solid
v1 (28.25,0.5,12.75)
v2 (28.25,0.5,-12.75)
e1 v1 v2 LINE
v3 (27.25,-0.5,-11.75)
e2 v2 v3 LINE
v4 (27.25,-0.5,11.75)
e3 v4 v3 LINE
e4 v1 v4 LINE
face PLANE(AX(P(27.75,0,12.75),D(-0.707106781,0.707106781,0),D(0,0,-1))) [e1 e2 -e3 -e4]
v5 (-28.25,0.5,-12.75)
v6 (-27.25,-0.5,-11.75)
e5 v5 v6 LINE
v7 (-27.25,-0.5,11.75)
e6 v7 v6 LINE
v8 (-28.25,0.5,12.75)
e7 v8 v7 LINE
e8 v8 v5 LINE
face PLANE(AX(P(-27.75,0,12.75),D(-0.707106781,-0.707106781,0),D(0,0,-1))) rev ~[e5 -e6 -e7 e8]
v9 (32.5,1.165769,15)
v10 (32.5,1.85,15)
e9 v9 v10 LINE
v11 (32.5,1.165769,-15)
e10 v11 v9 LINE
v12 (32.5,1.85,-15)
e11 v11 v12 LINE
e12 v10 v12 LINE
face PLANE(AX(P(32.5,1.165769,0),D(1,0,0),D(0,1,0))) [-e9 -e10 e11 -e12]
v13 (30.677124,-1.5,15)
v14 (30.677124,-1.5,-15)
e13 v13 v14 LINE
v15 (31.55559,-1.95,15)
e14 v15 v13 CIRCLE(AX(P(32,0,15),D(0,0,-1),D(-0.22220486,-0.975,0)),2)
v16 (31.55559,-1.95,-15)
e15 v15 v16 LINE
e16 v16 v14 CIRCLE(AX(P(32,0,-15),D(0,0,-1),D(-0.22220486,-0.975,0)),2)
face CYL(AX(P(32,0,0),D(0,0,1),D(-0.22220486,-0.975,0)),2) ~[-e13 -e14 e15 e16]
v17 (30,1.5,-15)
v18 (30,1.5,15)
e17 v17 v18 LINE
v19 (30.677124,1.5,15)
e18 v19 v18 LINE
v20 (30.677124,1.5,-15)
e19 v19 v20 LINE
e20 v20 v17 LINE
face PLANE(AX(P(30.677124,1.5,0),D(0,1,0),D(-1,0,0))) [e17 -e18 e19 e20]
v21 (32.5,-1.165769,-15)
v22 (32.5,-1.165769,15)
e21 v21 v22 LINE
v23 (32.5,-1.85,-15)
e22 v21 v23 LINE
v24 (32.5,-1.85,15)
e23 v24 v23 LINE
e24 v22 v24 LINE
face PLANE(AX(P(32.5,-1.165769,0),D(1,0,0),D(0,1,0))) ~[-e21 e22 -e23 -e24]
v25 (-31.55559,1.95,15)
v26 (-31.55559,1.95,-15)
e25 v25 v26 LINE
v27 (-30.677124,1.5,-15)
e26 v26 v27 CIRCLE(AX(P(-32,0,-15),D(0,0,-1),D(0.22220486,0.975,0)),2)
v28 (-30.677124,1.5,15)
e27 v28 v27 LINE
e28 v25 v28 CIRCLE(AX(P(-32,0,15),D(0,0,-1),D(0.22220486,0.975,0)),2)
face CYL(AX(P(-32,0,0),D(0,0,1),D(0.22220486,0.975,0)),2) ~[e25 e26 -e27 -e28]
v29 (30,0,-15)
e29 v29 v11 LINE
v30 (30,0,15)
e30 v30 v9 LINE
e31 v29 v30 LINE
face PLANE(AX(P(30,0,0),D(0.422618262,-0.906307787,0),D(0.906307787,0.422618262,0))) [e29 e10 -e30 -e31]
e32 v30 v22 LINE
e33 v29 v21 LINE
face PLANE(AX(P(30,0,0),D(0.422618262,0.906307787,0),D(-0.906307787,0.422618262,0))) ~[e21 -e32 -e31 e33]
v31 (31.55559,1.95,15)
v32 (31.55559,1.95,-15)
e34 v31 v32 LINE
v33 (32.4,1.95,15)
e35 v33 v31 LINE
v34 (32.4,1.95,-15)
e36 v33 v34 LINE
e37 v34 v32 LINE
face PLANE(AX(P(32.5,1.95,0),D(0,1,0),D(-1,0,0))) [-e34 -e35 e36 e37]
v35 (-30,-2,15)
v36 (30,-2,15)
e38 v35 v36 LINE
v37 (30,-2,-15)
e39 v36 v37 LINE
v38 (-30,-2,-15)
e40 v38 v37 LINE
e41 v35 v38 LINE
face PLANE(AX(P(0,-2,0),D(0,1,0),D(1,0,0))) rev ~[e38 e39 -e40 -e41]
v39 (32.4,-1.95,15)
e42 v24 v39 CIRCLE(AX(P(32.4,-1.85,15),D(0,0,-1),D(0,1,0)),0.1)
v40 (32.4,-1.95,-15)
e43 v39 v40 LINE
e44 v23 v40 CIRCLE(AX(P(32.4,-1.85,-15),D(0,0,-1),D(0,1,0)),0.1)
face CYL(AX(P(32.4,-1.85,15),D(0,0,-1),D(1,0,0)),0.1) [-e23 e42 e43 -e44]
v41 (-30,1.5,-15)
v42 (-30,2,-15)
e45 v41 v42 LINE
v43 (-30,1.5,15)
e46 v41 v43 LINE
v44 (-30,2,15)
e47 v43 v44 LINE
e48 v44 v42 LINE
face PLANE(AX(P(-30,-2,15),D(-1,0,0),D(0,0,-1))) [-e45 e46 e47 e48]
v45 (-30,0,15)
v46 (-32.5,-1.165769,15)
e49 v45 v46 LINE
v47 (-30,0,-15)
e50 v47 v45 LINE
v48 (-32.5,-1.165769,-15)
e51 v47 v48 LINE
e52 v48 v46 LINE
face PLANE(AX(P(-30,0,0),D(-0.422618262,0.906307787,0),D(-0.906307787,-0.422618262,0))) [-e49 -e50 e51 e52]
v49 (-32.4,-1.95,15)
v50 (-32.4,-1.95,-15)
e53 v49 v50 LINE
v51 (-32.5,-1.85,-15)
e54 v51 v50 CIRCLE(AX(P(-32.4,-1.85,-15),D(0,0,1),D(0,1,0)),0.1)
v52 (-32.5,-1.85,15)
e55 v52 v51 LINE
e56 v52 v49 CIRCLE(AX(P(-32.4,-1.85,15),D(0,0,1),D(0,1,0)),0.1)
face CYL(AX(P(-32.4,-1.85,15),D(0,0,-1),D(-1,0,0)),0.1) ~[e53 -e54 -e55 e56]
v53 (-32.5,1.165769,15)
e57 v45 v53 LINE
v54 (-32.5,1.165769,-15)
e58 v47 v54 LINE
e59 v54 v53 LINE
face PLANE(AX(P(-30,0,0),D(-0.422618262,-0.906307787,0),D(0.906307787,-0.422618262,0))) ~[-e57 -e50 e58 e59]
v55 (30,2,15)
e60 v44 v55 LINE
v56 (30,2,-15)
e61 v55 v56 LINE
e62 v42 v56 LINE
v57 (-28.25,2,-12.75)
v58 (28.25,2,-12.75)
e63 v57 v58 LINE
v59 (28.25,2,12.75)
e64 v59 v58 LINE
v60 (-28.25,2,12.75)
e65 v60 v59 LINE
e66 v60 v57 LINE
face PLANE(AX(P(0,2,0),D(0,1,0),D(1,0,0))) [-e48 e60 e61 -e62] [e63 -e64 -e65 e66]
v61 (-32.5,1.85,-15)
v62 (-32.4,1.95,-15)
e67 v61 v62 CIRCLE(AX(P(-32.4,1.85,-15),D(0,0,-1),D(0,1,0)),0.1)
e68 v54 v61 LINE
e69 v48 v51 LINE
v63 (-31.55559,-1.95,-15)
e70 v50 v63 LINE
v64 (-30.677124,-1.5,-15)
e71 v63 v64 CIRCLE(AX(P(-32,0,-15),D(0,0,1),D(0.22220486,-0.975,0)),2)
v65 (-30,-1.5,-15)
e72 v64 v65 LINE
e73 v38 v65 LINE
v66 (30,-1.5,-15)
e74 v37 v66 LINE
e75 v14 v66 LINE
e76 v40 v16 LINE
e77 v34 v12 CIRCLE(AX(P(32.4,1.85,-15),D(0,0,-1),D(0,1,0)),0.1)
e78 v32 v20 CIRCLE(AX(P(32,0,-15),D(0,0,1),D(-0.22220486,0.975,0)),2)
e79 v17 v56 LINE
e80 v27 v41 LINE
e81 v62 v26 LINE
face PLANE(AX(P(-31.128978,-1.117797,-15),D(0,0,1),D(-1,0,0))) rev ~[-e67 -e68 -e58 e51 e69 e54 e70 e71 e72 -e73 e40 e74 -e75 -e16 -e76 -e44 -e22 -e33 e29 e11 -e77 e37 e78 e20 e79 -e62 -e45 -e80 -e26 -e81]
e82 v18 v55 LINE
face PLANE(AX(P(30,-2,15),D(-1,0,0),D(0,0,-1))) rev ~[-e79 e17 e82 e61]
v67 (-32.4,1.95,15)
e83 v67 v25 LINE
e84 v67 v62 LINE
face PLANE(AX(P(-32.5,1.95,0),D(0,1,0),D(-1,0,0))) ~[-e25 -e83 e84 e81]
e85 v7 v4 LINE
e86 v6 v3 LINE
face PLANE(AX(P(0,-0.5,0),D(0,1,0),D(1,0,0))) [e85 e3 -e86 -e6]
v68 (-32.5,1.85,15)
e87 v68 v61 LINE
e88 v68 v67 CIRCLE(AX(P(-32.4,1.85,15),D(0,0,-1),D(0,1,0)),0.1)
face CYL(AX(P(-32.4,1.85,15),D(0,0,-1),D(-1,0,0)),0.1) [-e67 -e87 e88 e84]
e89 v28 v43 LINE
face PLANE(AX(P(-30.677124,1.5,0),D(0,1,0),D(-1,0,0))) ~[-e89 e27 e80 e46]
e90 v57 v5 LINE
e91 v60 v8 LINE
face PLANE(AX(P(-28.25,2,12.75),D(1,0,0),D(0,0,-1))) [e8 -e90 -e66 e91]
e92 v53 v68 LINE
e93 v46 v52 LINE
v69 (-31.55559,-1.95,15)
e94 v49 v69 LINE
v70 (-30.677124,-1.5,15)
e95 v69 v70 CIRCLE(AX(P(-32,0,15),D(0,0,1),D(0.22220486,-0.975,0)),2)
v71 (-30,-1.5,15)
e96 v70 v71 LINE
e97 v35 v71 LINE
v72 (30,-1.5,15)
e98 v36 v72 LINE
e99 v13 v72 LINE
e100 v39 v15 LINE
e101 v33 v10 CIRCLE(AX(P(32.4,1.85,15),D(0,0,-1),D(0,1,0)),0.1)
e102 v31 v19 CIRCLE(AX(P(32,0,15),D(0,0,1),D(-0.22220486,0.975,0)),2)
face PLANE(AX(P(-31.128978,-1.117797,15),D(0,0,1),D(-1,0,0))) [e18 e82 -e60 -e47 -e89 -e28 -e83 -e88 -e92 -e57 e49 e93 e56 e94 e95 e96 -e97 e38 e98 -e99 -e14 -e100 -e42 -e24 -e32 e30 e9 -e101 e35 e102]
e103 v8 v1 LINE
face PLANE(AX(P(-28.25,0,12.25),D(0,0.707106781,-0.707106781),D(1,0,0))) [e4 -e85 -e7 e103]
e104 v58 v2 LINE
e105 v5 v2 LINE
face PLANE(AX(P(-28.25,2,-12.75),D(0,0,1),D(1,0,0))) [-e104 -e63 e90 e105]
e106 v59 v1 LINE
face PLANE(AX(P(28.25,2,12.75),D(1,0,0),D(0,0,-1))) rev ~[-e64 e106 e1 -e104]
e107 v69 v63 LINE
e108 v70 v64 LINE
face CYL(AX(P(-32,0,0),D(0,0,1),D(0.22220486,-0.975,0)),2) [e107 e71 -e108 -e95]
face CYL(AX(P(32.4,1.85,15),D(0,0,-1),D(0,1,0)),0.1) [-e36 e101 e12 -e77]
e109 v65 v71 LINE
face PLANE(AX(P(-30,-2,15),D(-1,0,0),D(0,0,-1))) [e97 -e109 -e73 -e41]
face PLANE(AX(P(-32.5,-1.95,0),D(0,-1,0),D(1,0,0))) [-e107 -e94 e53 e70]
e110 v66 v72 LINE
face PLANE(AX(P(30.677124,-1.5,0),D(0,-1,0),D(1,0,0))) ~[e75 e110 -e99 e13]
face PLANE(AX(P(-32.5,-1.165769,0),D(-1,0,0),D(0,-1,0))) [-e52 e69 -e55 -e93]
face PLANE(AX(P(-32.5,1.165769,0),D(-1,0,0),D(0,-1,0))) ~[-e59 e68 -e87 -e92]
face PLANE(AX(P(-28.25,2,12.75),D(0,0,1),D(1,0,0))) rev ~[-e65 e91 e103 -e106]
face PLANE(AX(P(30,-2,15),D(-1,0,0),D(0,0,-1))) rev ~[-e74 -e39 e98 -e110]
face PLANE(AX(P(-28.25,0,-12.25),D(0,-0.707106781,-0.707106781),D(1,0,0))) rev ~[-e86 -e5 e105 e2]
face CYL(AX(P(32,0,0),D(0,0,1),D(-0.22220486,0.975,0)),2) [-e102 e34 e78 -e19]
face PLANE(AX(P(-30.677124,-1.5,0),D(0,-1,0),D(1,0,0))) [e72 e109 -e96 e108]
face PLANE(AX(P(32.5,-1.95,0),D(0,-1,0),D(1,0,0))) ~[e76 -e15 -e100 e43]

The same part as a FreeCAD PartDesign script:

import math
import FreeCAD as App
import Part
import Sketcher
from FreeCAD import Vector
Q = App.Units.Quantity


def edges_at(feature, points):
    """Names of the edges that pass closest to the given points."""
    edges = feature.Shape.Edges
    near = lambda p: min(range(len(edges)), key=lambda i: edges[i].distToShape(Part.Vertex(*p))[0])
    return sorted({f"Edge{near(p) + 1}" for p in points})


def add_polygon(sketch, points):
    """Adds a closed chain of lines whose ends are joined by coincident constraints."""
    first, n = sketch.GeometryCount, len(points)
    for a, b in zip(points, points[1:] + points[:1]):
        sketch.addGeometry(Part.LineSegment(App.Vector(*a, 0), App.Vector(*b, 0)), False)
    for i in range(n):
        sketch.addConstraint(Sketcher.Constraint("Coincident", first + i, 2, first + (i + 1) % n, 1))

doc = App.newDocument("Part")
params = doc.addObject("Spreadsheet::Sheet", "Params")
for row, (alias, value) in enumerate([
    ("sketch1_width", "60 mm"),
    ("sketch1_height", "30 mm"),
    ("pad1_length", "2 mm"),
    ("pad1_length2", "2 mm"),
    ("sketch2_width", "56.5 mm"),
    ("sketch2_height", "25.5 mm"),
    ("pocket1_length", "2.5 mm"),
    ("chamfer_size", "1 mm"),
    ("sketch3_radius", "2 mm"),
    ("sketch3_height", "1.5 mm"),
    ("pad2_length", "30 mm"),
    ("sketch4_radius", "2 mm"),
    ("sketch4_height", "1.5 mm"),
    ("pad3_length", "30 mm"),
    ("fillet_radius", "0.1 mm"),
], start=1):
    params.set(f"A{row}", alias)
    params.set(f"B{row}", "=" + value)
    params.setAlias(f"B{row}", alias)

body = doc.addObject("PartDesign::Body", "Body")

sketch1 = body.newObject("Sketcher::SketchObject", "Sketch")
sketch1.AttachmentSupport = (doc.getObject("XZ_Plane"), [""])
sketch1.MapMode = "FlatFace"
add_polygon(sketch1, [(-30, -15), (-30, 15), (30, 15), (30, -15)])
sketch1.addConstraint(Sketcher.Constraint("Vertical", 0))
sketch1.addConstraint(Sketcher.Constraint("Horizontal", 1))
sketch1.addConstraint(Sketcher.Constraint("Vertical", 2))
sketch1.addConstraint(Sketcher.Constraint("Horizontal", 3))
sketch1.addConstraint(Sketcher.Constraint("Symmetric", 0, 2, 2, 2, -1, 1))
sketch1.addConstraint(Sketcher.Constraint("DistanceX", 1, 1, 1, 2, Q("60 mm")))
sketch1.addConstraint(Sketcher.Constraint("DistanceY", 0, 1, 0, 2, Q("30 mm")))
sketch1.setExpression("Constraints[9]", "Params.sketch1_width")
sketch1.setExpression("Constraints[10]", "Params.sketch1_height")
pad1 = body.newObject("PartDesign::Pad", "Pad")
pad1.Profile = sketch1
pad1.Type = "TwoLengths"
pad1.setExpression("Length", "Params.pad1_length")
pad1.setExpression("Length2", "Params.pad1_length2")
pad1.Reversed = True

sketch2 = body.newObject("Sketcher::SketchObject", "Sketch001")
sketch2.AttachmentSupport = (doc.getObject("XZ_Plane"), [""])
sketch2.MapMode = "FlatFace"
sketch2.AttachmentOffset = App.Placement(Vector(0, 0, -2), App.Rotation())
add_polygon(sketch2, [(-28, -13), (-28, 13), (28, 13), (28, -13)])
sketch2.addConstraint(Sketcher.Constraint("Vertical", 0))
sketch2.addConstraint(Sketcher.Constraint("Horizontal", 1))
sketch2.addConstraint(Sketcher.Constraint("Vertical", 2))
sketch2.addConstraint(Sketcher.Constraint("Horizontal", 3))
sketch2.addConstraint(Sketcher.Constraint("Symmetric", 0, 2, 2, 2, -1, 1))
sketch2.addConstraint(Sketcher.Constraint("DistanceX", 1, 1, 1, 2, Q("56.5 mm")))
sketch2.addConstraint(Sketcher.Constraint("DistanceY", 0, 1, 0, 2, Q("25.5 mm")))
sketch2.setExpression("Constraints[9]", "Params.sketch2_width")
sketch2.setExpression("Constraints[10]", "Params.sketch2_height")
pocket1 = body.newObject("PartDesign::Pocket", "Pocket")
pocket1.Profile = sketch2
pocket1.setExpression("Length", "Params.pocket1_length")
pocket1.Reversed = True
doc.recompute()

chamfer = body.newObject("PartDesign::Chamfer", "Chamfer")
chamfer.Base = (pocket1, edges_at(pocket1, [
    (0, -0.5, -12.75),
    (28.25, -0.5, 0),
    (0, -0.5, 12.75),
    (-28.25, -0.5, 0),
]))
chamfer.setExpression("Size", "Params.chamfer_size")

sketch3 = body.newObject("Sketcher::SketchObject", "Sketch002")
sketch3.AttachmentSupport = (doc.getObject("XY_Plane"), [""])
sketch3.MapMode = "FlatFace"
sketch3.addGeometry(Part.LineSegment(Vector(30.7, 1.5, 0), Vector(30, 1.5, 0)), False)
sketch3.addGeometry(Part.LineSegment(Vector(30, 1.5, 0), Vector(30, 0, 0)), False)
sketch3.addGeometry(Part.LineSegment(Vector(30, 0, 0), Vector(32.5, 1.2, 0)), False)
sketch3.addGeometry(Part.LineSegment(Vector(32.5, 1.2, 0), Vector(32.5, 1.9, 0)), False)
sketch3.addGeometry(Part.LineSegment(Vector(32.5, 1.9, 0), Vector(31.6, 1.9, 0)), False)
sketch3.addGeometry(Part.ArcOfCircle(Part.Circle(Vector(32, 0, 0), Vector(0, 0, 1), 2), math.radians(103), math.radians(131)), False)
sketch3.addConstraint(Sketcher.Constraint("Coincident", 0, 2, 1, 1))
sketch3.addConstraint(Sketcher.Constraint("Coincident", 1, 2, 2, 1))
sketch3.addConstraint(Sketcher.Constraint("Coincident", 2, 2, 3, 1))
sketch3.addConstraint(Sketcher.Constraint("Coincident", 3, 2, 4, 1))
sketch3.addConstraint(Sketcher.Constraint("Coincident", 4, 2, 5, 1))
sketch3.addConstraint(Sketcher.Constraint("Coincident", 5, 2, 0, 1))
sketch3.addConstraint(Sketcher.Constraint("Horizontal", 0))
sketch3.addConstraint(Sketcher.Constraint("Vertical", 1))
sketch3.addConstraint(Sketcher.Constraint("Vertical", 3))
sketch3.addConstraint(Sketcher.Constraint("Horizontal", 4))
sketch3.addConstraint(Sketcher.Constraint("PointOnObject", 5, 3, -1))
sketch3.addConstraint(Sketcher.Constraint("PointOnObject", 1, 2, -1))
sketch3.addConstraint(Sketcher.Constraint("Radius", 5, Q("2 mm")))
sketch3.addConstraint(Sketcher.Constraint("Angle", 2, Q("25 deg")))
sketch3.addConstraint(Sketcher.Constraint("DistanceY", 1, 2, 1, 1, Q("1.5 mm")))
sketch3.addConstraint(Sketcher.Constraint("DistanceX", -1, 1, 5, 3, Q("32 mm")))
sketch3.addConstraint(Sketcher.Constraint("DistanceX", -1, 1, 0, 2, Q("30 mm")))
sketch3.addConstraint(Sketcher.Constraint("DistanceX", -1, 1, 2, 2, Q("32.5 mm")))
sketch3.addConstraint(Sketcher.Constraint("DistanceY", -1, 1, 3, 2, Q("1.95 mm")))
sketch3.setExpression("Constraints[12]", "Params.sketch3_radius")
sketch3.setExpression("Constraints[14]", "Params.sketch3_height")
pad2 = body.newObject("PartDesign::Pad", "Pad001")
pad2.Profile = sketch3
pad2.setExpression("Length", "Params.pad2_length")
pad2.Midplane = True
doc.recompute()

mirrored = body.newObject("PartDesign::Mirrored", "Mirrored")
mirrored.Originals = [pad2]
mirrored.MirrorPlane = (doc.getObject("XZ_Plane"), [""])
body.Tip = mirrored
doc.recompute()

mirrored2 = body.newObject("PartDesign::Mirrored", "Mirrored001")
mirrored2.Originals = [pad2]
mirrored2.MirrorPlane = (doc.getObject("YZ_Plane"), [""])
body.Tip = mirrored2

sketch4 = body.newObject("Sketcher::SketchObject", "Sketch003")
sketch4.AttachmentSupport = (doc.getObject("XY_Plane"), [""])
sketch4.MapMode = "FlatFace"
sketch4.addGeometry(Part.LineSegment(Vector(-30.7, -1.5, 0), Vector(-30, -1.5, 0)), False)
sketch4.addGeometry(Part.LineSegment(Vector(-30, -1.5, 0), Vector(-30, 0, 0)), False)
sketch4.addGeometry(Part.LineSegment(Vector(-30, 0, 0), Vector(-32.5, -1.2, 0)), False)
sketch4.addGeometry(Part.LineSegment(Vector(-32.5, -1.2, 0), Vector(-32.5, -1.9, 0)), False)
sketch4.addGeometry(Part.LineSegment(Vector(-32.5, -1.9, 0), Vector(-31.6, -1.9, 0)), False)
sketch4.addGeometry(Part.ArcOfCircle(Part.Circle(Vector(-32, 0, 0), Vector(0, 0, 1), 2), math.radians(-77), math.radians(-49)), False)
sketch4.addConstraint(Sketcher.Constraint("Coincident", 0, 2, 1, 1))
sketch4.addConstraint(Sketcher.Constraint("Coincident", 1, 2, 2, 1))
sketch4.addConstraint(Sketcher.Constraint("Coincident", 2, 2, 3, 1))
sketch4.addConstraint(Sketcher.Constraint("Coincident", 3, 2, 4, 1))
sketch4.addConstraint(Sketcher.Constraint("Coincident", 4, 2, 5, 1))
sketch4.addConstraint(Sketcher.Constraint("Coincident", 5, 2, 0, 1))
sketch4.addConstraint(Sketcher.Constraint("Horizontal", 0))
sketch4.addConstraint(Sketcher.Constraint("Vertical", 1))
sketch4.addConstraint(Sketcher.Constraint("Vertical", 3))
sketch4.addConstraint(Sketcher.Constraint("Horizontal", 4))
sketch4.addConstraint(Sketcher.Constraint("PointOnObject", 5, 3, -1))
sketch4.addConstraint(Sketcher.Constraint("PointOnObject", 1, 2, -1))
sketch4.addConstraint(Sketcher.Constraint("Radius", 5, Q("2 mm")))
sketch4.addConstraint(Sketcher.Constraint("Angle", 2, Q("-155 deg")))
sketch4.addConstraint(Sketcher.Constraint("DistanceY", 1, 1, 1, 2, Q("1.5 mm")))
sketch4.addConstraint(Sketcher.Constraint("DistanceX", 5, 3, -1, 1, Q("32 mm")))
sketch4.addConstraint(Sketcher.Constraint("DistanceX", 0, 2, -1, 1, Q("30 mm")))
sketch4.addConstraint(Sketcher.Constraint("DistanceX", 2, 2, -1, 1, Q("32.5 mm")))
sketch4.addConstraint(Sketcher.Constraint("DistanceY", 3, 2, -1, 1, Q("1.95 mm")))
sketch4.setExpression("Constraints[12]", "Params.sketch4_radius")
sketch4.setExpression("Constraints[14]", "Params.sketch4_height")
pad3 = body.newObject("PartDesign::Pad", "Pad002")
pad3.Profile = sketch4
pad3.setExpression("Length", "Params.pad3_length")
pad3.Midplane = True
doc.recompute()

fillet = body.newObject("PartDesign::Fillet", "Fillet")
fillet.Base = (pad3, edges_at(pad3, [
    (-32.5, -1.95, 0),
    (32.5, 1.95, 0),
    (32.5, -1.95, 0),
    (-32.5, 1.95, 0),
]))
fillet.setExpression("Radius", "Params.fillet_radius")

doc.recompute()
